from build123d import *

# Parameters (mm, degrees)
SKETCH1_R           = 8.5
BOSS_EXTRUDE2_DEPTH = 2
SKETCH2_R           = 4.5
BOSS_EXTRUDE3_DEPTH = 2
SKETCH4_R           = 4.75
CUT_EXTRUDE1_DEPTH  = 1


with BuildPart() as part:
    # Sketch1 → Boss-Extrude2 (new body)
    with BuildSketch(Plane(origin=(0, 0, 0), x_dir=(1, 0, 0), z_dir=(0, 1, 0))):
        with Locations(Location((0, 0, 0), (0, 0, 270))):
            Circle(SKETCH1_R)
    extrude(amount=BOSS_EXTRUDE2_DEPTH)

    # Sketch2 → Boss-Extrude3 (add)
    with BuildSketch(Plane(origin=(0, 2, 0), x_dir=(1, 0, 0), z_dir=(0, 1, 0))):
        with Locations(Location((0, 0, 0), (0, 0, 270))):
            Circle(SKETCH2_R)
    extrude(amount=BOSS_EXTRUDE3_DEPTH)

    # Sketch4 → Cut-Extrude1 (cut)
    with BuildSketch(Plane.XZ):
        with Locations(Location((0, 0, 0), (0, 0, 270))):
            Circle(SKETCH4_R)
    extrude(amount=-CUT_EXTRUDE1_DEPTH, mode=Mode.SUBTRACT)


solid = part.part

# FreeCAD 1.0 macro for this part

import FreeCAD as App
import Part
import Sketcher

V = App.Vector

doc = App.newDocument("Part")
body = doc.addObject("PartDesign::Body", "Body")

sketch1 = body.newObject("Sketcher::SketchObject", "Sketch")
sketch1.AttachmentSupport = (doc.getObject("XZ_Plane"), [""])
sketch1.MapMode = "FlatFace"
sketch1.addGeometry(Part.Circle(V(0, 0, 0), V(0, 0, 1), 8), False)
sketch1.addConstraint([
    Sketcher.Constraint("Coincident", 0, 3, -1, 1),
    Sketcher.Constraint("Diameter", 0, 17.0),
])
pad1 = body.newObject("PartDesign::Pad", "Pad")
pad1.Profile = sketch1
pad1.Length = 2
pad1.Reversed = True

sketch2 = body.newObject("Sketcher::SketchObject", "Sketch001")
sketch2.AttachmentSupport = (doc.getObject("XZ_Plane"), [""])
sketch2.MapMode = "FlatFace"
sketch2.AttachmentOffset = App.Placement(V(0, 0, -2), App.Rotation())
sketch2.addGeometry(Part.Circle(V(0, 0, 0), V(0, 0, 1), 4.5), False)
sketch2.addConstraint([
    Sketcher.Constraint("Coincident", 0, 3, -1, 1),
    Sketcher.Constraint("Diameter", 0, 9.0),
])
pad2 = body.newObject("PartDesign::Pad", "Pad001")
pad2.Profile = sketch2
pad2.Length = 2
pad2.Reversed = True

sketch3 = body.newObject("Sketcher::SketchObject", "Sketch002")
sketch3.AttachmentSupport = (doc.getObject("XZ_Plane"), [""])
sketch3.MapMode = "FlatFace"
sketch3.addGeometry(Part.Circle(V(0, 0, 0), V(0, 0, 1), 4.8), False)
sketch3.addConstraint([
    Sketcher.Constraint("Coincident", 0, 3, -1, 1),
    Sketcher.Constraint("Diameter", 0, 9.5),
])
pocket1 = body.newObject("PartDesign::Pocket", "Pocket")
pocket1.Profile = sketch3
pocket1.Length = 1

doc.recompute()
